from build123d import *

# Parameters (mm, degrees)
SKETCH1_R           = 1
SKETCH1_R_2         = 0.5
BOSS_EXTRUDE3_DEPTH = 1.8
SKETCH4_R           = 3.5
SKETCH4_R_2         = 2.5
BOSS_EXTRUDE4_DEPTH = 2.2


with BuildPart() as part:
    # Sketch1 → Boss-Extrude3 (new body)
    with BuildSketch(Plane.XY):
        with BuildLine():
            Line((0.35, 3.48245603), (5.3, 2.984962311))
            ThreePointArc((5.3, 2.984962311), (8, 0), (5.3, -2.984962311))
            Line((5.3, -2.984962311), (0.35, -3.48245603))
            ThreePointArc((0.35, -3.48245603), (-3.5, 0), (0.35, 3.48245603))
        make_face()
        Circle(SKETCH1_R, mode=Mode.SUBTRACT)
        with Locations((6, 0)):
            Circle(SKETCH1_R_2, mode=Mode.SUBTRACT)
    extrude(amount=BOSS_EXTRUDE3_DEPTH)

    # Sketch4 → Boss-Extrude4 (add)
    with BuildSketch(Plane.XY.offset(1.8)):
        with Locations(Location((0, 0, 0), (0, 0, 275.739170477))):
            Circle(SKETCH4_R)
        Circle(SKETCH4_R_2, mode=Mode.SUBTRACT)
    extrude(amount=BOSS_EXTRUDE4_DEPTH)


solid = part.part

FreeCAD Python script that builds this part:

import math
import FreeCAD as App
import Part
import Sketcher

doc = App.newDocument("Part")
body = doc.addObject("PartDesign::Body", "Body")

# Sketch on XY plane
sketch1 = body.newObject("Sketcher::SketchObject", "Sketch")
sketch1.AttachmentSupport = (doc.getObject("XY_Plane"), [""])
sketch1.MapMode = "FlatFace"
sketch1.addGeometry([
    Part.LineSegment(App.Vector(5.3, 3, 0), App.Vector(0.3, 3.5, 0)),  # 0
    Part.ArcOfCircle(Part.Circle(App.Vector(0, 0, 0), App.Vector(0, 0, 1), 3.5), math.radians(84), math.radians(276)),  # 1
    Part.LineSegment(App.Vector(0.3, -3.5, 0), App.Vector(5.3, -3, 0)),  # 2
    Part.ArcOfCircle(Part.Circle(App.Vector(5, 0, 0), App.Vector(0, 0, 1), 3), math.radians(-84), math.radians(84)),  # 3
    Part.Circle(App.Vector(6, 0, 0), App.Vector(0, 0, 1), 0.5),  # 4
    Part.Circle(App.Vector(0, 0, 0), App.Vector(0, 0, 1), 1),  # 5
], False)
sketch1.addConstraint([
    Sketcher.Constraint("Tangent", 0, 2, 1, 1),
    Sketcher.Constraint("Tangent", 1, 2, 2, 1),
    Sketcher.Constraint("Tangent", 2, 2, 3, 1),
    Sketcher.Constraint("Tangent", 3, 2, 0, 1),
    Sketcher.Constraint("Coincident", 1, 3, -1, 1),
    Sketcher.Constraint("Coincident", 5, 3, -1, 1),
    Sketcher.Constraint("PointOnObject", 3, 3, -1),
    Sketcher.Constraint("PointOnObject", 4, 3, -1),
    Sketcher.Constraint("Diameter", 4, 1.0),
    Sketcher.Constraint("Diameter", 5, 2.0),
    Sketcher.Constraint("Radius", 3, 3.0),
    Sketcher.Constraint("Radius", 1, 3.5),
    Sketcher.Constraint("DistanceX", -1, 1, 3, 3, 5.0),
    Sketcher.Constraint("DistanceX", -1, 1, 4, 3, 6.0),
])
pad1 = body.newObject("PartDesign::Pad", "Pad")
pad1.Profile = sketch1
pad1.Length = 1.8

# Sketch on XY plane
sketch2 = body.newObject("Sketcher::SketchObject", "Sketch001")
sketch2.AttachmentSupport = (doc.getObject("XY_Plane"), [""])
sketch2.MapMode = "FlatFace"
sketch2.AttachmentOffset = App.Placement(App.Vector(0, 0, 1.8), App.Rotation())
sketch2.addGeometry([
    Part.Circle(App.Vector(0, 0, 0), App.Vector(0, 0, 1), 3.5),
    Part.Circle(App.Vector(0, 0, 0), App.Vector(0, 0, 1), 2.5),
], False)
sketch2.addConstraint([
    Sketcher.Constraint("Coincident", 0, 3, -1, 1),
    Sketcher.Constraint("Coincident", 1, 3, -1, 1),
    Sketcher.Constraint("Diameter", 0, 7.0),
    Sketcher.Constraint("Diameter", 1, 5.0),
])
pad2 = body.newObject("PartDesign::Pad", "Pad001")
pad2.Profile = sketch2
pad2.Length = 2.2

doc.recompute()
